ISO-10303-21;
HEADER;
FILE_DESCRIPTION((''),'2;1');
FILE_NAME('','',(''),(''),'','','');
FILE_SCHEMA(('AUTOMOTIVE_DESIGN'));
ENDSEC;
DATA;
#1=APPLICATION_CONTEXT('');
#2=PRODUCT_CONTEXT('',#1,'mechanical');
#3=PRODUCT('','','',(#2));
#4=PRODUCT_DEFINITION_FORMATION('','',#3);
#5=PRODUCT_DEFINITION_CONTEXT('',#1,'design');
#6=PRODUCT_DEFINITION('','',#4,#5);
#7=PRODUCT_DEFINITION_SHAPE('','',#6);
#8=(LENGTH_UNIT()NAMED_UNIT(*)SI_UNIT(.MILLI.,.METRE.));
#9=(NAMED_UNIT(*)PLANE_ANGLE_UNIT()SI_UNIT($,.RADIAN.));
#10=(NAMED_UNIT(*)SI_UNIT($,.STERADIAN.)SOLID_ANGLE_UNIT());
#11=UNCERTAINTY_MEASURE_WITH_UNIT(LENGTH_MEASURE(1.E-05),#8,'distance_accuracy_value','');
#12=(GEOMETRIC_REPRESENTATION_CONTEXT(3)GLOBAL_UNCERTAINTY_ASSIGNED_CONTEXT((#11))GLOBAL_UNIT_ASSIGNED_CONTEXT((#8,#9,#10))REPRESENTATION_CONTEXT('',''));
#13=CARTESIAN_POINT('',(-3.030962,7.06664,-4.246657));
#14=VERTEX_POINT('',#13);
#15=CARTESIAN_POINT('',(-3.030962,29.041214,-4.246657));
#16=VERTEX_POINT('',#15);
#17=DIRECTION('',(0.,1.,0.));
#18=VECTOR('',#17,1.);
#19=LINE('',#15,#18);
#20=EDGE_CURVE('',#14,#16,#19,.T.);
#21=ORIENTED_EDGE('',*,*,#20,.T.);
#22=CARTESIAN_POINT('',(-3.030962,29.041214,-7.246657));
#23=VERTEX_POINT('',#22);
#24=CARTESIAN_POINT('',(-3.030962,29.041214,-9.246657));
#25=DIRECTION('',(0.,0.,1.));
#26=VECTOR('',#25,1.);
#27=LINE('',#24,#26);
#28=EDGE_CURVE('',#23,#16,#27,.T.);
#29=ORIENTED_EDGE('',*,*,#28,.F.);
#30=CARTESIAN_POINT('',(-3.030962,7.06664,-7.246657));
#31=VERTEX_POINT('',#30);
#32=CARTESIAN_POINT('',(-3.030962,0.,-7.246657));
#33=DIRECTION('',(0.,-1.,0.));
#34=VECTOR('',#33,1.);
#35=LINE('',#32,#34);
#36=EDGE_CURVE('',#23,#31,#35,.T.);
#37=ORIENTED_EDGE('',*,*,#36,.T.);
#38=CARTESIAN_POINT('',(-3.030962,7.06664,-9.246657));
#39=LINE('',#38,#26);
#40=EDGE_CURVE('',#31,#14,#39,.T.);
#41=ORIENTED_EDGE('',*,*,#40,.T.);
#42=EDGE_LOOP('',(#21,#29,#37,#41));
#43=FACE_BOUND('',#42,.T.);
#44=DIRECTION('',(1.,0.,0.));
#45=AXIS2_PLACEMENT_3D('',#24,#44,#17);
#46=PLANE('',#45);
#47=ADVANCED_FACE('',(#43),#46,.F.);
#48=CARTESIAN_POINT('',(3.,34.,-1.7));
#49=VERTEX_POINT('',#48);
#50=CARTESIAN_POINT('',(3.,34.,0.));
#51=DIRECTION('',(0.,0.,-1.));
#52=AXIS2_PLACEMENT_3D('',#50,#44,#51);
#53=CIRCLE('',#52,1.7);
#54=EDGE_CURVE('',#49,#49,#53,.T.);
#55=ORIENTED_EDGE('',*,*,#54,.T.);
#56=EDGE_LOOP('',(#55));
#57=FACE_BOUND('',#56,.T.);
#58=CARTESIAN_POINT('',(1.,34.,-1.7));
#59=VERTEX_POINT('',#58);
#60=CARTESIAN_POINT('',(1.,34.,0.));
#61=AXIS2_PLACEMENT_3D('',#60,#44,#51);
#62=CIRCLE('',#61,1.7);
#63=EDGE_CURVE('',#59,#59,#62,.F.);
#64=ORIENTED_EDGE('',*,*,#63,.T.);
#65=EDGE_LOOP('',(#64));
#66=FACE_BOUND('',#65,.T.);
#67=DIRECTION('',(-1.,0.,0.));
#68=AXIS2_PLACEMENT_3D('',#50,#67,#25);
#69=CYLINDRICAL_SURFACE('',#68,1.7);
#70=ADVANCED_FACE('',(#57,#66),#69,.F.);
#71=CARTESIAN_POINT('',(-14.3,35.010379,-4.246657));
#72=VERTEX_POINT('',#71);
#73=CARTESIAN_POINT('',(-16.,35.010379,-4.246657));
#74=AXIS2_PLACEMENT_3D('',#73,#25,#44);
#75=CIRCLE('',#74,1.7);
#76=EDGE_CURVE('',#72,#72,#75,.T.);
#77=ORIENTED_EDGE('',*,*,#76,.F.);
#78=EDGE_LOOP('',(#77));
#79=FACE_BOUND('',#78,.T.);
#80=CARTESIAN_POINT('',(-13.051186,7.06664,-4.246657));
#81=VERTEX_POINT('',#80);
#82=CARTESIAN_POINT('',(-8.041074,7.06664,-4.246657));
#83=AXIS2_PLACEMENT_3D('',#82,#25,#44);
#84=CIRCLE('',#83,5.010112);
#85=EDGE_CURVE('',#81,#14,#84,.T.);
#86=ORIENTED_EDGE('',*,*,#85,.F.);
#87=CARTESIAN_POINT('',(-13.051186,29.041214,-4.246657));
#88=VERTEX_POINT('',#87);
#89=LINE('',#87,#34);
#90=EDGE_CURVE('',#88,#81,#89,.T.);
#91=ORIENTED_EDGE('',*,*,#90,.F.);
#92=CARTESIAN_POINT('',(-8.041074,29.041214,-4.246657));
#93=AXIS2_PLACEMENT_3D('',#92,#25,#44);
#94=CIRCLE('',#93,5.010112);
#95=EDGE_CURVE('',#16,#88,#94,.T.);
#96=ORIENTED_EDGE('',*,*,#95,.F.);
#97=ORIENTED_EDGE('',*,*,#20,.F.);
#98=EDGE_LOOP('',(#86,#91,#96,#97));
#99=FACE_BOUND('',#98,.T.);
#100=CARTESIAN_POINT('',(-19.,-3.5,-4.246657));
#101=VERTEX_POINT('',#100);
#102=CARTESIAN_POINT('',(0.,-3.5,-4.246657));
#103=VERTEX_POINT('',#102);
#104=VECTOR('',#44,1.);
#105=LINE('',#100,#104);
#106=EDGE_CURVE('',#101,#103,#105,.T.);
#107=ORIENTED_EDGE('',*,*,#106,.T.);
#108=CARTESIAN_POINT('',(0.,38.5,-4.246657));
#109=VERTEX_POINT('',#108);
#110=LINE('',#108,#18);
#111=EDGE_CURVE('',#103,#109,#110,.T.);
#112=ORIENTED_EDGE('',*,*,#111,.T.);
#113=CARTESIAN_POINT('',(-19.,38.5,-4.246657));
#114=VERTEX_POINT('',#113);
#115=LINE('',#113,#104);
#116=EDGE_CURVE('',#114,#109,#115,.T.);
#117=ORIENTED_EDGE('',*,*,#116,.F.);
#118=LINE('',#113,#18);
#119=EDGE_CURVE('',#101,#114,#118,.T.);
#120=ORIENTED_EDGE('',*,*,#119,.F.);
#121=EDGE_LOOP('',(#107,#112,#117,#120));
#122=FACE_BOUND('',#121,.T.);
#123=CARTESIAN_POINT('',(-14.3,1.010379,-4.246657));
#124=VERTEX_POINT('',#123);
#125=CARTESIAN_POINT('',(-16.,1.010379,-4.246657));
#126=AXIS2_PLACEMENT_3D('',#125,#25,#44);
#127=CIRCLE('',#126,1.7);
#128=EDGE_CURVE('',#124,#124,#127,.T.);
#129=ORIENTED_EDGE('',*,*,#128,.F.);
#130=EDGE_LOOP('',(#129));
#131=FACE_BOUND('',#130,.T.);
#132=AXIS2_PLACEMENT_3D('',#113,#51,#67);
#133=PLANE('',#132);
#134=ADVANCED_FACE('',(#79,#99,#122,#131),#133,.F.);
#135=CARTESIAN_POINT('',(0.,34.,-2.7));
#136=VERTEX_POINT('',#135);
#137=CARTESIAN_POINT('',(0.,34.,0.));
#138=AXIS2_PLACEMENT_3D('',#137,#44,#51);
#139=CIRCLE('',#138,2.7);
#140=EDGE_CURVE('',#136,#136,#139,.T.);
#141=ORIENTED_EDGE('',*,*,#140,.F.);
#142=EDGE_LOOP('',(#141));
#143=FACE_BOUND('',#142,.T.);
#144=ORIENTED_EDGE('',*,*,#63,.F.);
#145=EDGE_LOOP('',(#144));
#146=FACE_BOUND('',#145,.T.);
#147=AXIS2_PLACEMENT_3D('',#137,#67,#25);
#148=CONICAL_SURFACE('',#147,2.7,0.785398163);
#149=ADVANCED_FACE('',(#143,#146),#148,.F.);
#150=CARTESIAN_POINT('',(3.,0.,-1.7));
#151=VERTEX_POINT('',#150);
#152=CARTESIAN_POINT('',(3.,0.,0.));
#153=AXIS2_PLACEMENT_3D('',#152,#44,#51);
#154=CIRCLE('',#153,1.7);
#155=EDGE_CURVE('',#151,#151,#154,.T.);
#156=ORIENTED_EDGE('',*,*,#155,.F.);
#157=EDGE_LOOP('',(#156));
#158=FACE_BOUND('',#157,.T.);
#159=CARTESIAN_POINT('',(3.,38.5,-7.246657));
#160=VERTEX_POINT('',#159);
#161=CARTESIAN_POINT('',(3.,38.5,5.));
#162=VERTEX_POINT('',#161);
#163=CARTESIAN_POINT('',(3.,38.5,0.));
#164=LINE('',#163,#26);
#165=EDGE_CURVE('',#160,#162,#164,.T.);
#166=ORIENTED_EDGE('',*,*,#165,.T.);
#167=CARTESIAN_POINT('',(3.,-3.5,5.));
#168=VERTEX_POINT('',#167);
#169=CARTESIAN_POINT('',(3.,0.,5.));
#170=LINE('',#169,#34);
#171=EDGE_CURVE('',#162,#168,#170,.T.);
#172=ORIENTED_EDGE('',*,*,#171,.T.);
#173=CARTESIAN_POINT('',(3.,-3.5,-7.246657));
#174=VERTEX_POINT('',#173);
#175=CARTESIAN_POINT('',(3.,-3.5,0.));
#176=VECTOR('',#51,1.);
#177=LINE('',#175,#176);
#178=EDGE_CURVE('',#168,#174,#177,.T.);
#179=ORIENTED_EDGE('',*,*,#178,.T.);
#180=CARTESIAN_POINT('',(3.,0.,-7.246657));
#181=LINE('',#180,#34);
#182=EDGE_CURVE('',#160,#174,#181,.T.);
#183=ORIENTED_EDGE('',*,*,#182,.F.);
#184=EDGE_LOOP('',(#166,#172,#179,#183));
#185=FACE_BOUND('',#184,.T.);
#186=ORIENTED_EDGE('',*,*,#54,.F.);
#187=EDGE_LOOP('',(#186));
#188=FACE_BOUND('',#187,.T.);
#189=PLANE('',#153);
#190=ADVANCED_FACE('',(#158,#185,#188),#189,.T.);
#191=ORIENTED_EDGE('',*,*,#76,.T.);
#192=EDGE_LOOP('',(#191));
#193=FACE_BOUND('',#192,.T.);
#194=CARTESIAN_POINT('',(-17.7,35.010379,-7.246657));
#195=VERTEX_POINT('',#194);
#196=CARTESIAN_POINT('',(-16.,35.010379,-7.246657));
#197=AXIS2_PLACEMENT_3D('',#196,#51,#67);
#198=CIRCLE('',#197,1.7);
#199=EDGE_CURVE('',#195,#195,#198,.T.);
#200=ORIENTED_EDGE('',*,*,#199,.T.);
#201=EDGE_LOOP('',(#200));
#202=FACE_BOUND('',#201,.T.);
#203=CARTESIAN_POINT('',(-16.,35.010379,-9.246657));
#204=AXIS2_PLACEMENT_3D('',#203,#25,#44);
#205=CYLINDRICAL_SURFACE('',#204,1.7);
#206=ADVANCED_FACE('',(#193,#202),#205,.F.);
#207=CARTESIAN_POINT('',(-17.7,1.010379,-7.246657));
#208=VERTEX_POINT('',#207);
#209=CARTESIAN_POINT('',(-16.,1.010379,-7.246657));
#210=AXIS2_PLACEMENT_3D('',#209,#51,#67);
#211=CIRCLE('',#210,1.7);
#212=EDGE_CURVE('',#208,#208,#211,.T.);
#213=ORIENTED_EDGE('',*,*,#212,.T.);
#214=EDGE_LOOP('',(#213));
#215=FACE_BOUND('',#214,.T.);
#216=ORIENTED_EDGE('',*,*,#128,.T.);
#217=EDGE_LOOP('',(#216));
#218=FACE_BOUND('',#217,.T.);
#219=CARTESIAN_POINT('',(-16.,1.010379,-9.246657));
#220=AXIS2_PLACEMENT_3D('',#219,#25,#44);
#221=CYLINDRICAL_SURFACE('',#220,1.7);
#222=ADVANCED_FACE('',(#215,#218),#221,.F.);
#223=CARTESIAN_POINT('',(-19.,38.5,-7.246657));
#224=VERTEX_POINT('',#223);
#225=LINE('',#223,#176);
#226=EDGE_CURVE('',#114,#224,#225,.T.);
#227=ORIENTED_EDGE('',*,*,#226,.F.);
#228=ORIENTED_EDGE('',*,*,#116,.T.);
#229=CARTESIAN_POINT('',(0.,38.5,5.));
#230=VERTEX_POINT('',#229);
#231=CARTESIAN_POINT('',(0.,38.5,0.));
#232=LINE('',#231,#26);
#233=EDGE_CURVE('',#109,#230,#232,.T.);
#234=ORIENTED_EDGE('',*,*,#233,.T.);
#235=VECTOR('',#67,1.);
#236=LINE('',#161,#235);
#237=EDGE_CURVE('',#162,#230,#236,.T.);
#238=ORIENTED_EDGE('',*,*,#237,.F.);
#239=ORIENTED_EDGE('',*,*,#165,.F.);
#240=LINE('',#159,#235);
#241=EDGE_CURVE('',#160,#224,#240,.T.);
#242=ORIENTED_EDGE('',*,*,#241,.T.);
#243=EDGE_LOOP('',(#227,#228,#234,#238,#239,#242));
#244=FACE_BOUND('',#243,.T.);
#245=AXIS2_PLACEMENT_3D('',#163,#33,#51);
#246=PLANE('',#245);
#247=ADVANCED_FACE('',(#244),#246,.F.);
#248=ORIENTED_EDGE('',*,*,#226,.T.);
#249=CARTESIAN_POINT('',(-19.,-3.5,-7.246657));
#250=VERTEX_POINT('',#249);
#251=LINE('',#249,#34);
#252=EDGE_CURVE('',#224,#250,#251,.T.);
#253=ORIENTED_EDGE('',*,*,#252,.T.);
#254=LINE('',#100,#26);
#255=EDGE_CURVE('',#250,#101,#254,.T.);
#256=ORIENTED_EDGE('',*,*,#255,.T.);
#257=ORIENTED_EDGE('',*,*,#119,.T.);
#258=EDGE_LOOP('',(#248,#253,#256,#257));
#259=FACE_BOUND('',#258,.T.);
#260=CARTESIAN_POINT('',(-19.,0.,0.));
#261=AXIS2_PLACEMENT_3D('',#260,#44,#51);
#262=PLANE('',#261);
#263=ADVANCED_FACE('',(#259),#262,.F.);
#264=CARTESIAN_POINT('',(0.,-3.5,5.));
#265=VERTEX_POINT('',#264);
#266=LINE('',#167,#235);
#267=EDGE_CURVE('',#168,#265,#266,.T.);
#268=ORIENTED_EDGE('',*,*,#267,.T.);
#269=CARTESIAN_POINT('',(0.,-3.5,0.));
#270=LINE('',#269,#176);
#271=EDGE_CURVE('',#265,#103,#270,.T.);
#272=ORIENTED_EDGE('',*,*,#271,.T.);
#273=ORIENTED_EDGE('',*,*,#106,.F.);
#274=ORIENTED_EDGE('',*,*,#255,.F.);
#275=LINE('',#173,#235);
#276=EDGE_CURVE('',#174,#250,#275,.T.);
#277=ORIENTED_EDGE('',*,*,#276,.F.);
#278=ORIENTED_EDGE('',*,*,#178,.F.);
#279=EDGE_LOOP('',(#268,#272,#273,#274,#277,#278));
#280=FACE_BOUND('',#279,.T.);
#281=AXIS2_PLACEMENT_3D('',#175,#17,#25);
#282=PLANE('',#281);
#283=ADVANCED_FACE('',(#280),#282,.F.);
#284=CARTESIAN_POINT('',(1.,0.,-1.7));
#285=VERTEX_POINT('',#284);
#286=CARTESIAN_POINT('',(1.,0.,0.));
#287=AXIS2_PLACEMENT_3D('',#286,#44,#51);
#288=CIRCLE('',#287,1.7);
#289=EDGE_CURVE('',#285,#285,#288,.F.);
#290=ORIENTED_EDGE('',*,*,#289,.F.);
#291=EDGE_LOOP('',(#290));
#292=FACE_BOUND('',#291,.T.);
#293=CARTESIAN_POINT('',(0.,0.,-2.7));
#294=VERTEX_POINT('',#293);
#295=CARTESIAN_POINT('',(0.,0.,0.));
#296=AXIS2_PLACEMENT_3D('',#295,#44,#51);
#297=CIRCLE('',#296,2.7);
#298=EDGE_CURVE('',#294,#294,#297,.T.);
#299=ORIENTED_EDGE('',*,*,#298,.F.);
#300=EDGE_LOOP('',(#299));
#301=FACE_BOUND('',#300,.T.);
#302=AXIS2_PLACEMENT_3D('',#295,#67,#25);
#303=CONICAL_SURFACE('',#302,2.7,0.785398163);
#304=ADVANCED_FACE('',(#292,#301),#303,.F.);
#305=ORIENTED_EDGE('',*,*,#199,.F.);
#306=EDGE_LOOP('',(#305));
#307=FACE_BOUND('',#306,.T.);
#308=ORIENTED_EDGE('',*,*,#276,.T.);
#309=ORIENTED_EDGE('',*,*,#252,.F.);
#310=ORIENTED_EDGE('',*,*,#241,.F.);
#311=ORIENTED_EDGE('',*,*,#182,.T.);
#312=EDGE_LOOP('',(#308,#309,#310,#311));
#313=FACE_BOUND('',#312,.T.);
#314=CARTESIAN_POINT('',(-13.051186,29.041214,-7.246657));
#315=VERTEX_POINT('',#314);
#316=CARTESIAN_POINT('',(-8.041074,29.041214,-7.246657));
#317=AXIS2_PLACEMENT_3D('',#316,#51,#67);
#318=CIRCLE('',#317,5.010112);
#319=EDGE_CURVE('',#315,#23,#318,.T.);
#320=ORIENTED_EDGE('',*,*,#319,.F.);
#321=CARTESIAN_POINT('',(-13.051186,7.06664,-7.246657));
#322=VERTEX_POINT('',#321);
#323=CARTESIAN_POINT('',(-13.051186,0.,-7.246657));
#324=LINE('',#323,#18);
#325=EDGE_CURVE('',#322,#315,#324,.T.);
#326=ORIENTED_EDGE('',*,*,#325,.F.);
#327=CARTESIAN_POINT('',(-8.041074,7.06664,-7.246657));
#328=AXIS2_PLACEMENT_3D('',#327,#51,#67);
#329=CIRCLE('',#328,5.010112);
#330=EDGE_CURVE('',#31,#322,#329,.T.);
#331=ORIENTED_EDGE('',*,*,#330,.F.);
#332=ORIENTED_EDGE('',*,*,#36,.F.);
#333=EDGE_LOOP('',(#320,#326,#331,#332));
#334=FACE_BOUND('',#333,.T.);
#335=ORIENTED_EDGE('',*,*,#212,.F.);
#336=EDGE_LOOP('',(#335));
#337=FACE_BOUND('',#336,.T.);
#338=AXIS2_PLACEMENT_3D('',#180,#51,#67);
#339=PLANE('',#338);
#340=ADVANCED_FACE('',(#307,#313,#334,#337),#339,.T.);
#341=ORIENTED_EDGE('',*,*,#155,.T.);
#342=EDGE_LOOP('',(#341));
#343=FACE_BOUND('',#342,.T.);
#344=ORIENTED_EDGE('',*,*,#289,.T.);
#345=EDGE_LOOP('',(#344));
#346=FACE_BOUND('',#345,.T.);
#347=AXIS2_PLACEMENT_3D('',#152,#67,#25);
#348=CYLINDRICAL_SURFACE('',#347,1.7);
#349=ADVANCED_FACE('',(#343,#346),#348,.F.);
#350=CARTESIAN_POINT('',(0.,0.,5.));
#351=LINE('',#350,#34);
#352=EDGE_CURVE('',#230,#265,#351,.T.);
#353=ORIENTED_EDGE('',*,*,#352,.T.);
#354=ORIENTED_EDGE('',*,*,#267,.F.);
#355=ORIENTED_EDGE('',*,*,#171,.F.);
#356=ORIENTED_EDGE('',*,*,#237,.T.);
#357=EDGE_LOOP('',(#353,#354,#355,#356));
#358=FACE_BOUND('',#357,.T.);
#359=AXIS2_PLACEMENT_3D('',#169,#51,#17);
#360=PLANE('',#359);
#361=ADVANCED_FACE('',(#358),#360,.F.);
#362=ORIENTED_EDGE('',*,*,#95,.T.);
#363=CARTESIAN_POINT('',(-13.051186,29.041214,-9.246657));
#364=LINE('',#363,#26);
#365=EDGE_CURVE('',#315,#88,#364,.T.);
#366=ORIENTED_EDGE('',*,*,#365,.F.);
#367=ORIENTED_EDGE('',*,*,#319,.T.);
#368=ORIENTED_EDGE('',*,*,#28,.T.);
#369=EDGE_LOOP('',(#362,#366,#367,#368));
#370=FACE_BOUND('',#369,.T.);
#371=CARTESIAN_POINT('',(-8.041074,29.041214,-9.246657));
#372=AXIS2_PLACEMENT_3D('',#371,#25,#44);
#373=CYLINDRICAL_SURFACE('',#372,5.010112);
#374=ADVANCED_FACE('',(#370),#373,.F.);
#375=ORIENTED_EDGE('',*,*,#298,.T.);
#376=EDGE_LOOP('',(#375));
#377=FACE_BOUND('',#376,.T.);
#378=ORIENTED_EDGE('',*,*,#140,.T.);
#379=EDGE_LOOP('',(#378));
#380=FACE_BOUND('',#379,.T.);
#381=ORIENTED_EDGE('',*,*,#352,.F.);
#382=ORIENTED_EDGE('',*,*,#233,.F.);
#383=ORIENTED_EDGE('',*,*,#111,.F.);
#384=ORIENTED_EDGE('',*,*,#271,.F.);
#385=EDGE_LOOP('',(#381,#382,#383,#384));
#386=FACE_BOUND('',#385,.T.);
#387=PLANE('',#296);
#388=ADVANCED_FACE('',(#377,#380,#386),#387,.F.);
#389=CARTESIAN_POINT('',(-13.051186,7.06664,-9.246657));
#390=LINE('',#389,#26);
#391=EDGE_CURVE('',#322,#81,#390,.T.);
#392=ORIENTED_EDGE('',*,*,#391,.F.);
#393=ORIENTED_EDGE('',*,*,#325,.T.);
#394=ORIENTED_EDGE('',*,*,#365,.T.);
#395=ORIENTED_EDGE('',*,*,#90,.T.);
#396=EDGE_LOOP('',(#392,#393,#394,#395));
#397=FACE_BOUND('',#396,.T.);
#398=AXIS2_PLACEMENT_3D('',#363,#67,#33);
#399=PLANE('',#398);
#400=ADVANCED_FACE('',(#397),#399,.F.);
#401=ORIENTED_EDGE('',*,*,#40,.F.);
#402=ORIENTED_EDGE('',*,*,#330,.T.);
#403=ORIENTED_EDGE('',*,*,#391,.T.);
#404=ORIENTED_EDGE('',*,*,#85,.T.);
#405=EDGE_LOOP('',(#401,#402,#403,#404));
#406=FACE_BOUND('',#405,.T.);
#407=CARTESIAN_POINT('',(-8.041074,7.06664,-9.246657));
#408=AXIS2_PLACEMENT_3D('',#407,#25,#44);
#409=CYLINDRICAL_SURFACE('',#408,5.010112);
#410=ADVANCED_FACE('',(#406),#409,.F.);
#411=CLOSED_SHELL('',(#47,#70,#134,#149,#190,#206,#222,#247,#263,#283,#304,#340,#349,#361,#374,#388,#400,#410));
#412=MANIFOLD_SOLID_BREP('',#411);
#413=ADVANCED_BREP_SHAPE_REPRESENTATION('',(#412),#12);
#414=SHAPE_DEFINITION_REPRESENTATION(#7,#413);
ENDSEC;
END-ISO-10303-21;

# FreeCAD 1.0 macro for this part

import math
import FreeCAD as App
import Part
import Sketcher


def edges_at(feature, points):
    """Names of the edges that pass closest to the given points."""
    edges = feature.Shape.Edges
    near = lambda p: min(range(len(edges)), key=lambda i: edges[i].distToShape(Part.Vertex(*p))[0])
    return sorted({f"Edge{near(p) + 1}" for p in points})


def add_polygon(sketch, points):
    """Adds a closed chain of lines whose ends are joined by coincident constraints."""
    first, n = sketch.GeometryCount, len(points)
    for a, b in zip(points, points[1:] + points[:1]):
        sketch.addGeometry(Part.LineSegment(App.Vector(*a, 0), App.Vector(*b, 0)), False)
    for i in range(n):
        sketch.addConstraint(Sketcher.Constraint("Coincident", first + i, 2, first + (i + 1) % n, 1))

doc = App.newDocument("Part")
params = doc.addObject("Spreadsheet::Sheet", "Params")
for row, (alias, value) in enumerate([
    ("sketch1_diameter", "3.4 mm"),
    ("sketch1_width", "42 mm"),
    ("pad1_length", "3 mm"),
    ("sketch2_width", "42 mm"),
    ("sketch2_height", "3 mm"),
    ("pad2_length", "19 mm"),
    ("sketch3_diameter", "3.4 mm"),
    ("pocket1_length", "5 mm"),
    ("pocket2_length", "5 mm"),
    ("chamfer_size", "1 mm"),
], start=1):
    params.set(f"A{row}", alias)
    params.set(f"B{row}", "=" + value)
    params.setAlias(f"B{row}", alias)

body = doc.addObject("PartDesign::Body", "Body")

# Sketch on YZ plane
sketch1 = body.newObject("Sketcher::SketchObject", "Sketch")
sketch1.AttachmentSupport = (doc.getObject("YZ_Plane"), [""])
sketch1.MapMode = "FlatFace"
add_polygon(sketch1, [(38.5, 5), (-3.5, 5), (-3.5, -7.2), (38.5, -7.2)])  # lines 0-3
sketch1.addGeometry(Part.Circle(App.Vector(0, 0, 0), App.Vector(0, 0, 1), 1.7), False)  # 4
sketch1.addGeometry(Part.Circle(App.Vector(34, 0, 0), App.Vector(0, 0, 1), 1.7), False)  # 5
sketch1.addConstraint(Sketcher.Constraint("Horizontal", 0))
sketch1.addConstraint(Sketcher.Constraint("Vertical", 1))
sketch1.addConstraint(Sketcher.Constraint("Horizontal", 2))
sketch1.addConstraint(Sketcher.Constraint("Vertical", 3))
sketch1.addConstraint(Sketcher.Constraint("Coincident", 4, 3, -1, 1))
sketch1.addConstraint(Sketcher.Constraint("Equal", 4, 5))
sketch1.addConstraint(Sketcher.Constraint("PointOnObject", 5, 3, -1))
sketch1.addConstraint(Sketcher.Constraint("Diameter", 4, 3.4))
sketch1.addConstraint(Sketcher.Constraint("DistanceX", 0, 2, 0, 1, 42.0))
sketch1.addConstraint(Sketcher.Constraint("DistanceX", -1, 1, 5, 3, 34.0))
sketch1.addConstraint(Sketcher.Constraint("DistanceY", -1, 1, 0, 2, 5.0))
sketch1.addConstraint(Sketcher.Constraint("DistanceX", 0, 2, -1, 1, 3.5))
sketch1.addConstraint(Sketcher.Constraint("DistanceY", 1, 2, 1, 1, 12.246657))
sketch1.setExpression("Constraints[11]", "Params.sketch1_diameter")
sketch1.setExpression("Constraints[12]", "Params.sketch1_width")
pad1 = body.newObject("PartDesign::Pad", "Pad")
pad1.Profile = sketch1
pad1.setExpression("Length", "Params.pad1_length")

# Sketch on YZ plane
sketch2 = body.newObject("Sketcher::SketchObject", "Sketch001")
sketch2.AttachmentSupport = (doc.getObject("YZ_Plane"), [""])
sketch2.MapMode = "FlatFace"
add_polygon(sketch2, [(38.5, -7.2), (-3.5, -7.2), (-3.5, -4.2), (38.5, -4.2)])  # lines 0-3
sketch2.addConstraint(Sketcher.Constraint("Horizontal", 0))
sketch2.addConstraint(Sketcher.Constraint("Vertical", 1))
sketch2.addConstraint(Sketcher.Constraint("Horizontal", 2))
sketch2.addConstraint(Sketcher.Constraint("Vertical", 3))
sketch2.addConstraint(Sketcher.Constraint("DistanceX", 0, 2, 0, 1, 42.0))
sketch2.addConstraint(Sketcher.Constraint("DistanceY", 1, 1, 1, 2, 3.0))
sketch2.addConstraint(Sketcher.Constraint("DistanceX", 0, 2, -1, 1, 3.5))
sketch2.addConstraint(Sketcher.Constraint("DistanceY", 0, 2, -1, 1, 7.246657))
sketch2.setExpression("Constraints[8]", "Params.sketch2_width")
sketch2.setExpression("Constraints[9]", "Params.sketch2_height")
pad2 = body.newObject("PartDesign::Pad", "Pad001")
pad2.Profile = sketch2
pad2.setExpression("Length", "Params.pad2_length")
pad2.Reversed = True

# Sketch on XY plane
sketch3 = body.newObject("Sketcher::SketchObject", "Sketch002")
sketch3.AttachmentSupport = (doc.getObject("XY_Plane"), [""])
sketch3.MapMode = "FlatFace"
sketch3.AttachmentOffset = App.Placement(App.Vector(0, 0, -4.246657), App.Rotation())
sketch3.addGeometry(Part.Circle(App.Vector(-16, 35, 0), App.Vector(0, 0, 1), 1.7), False)
sketch3.addGeometry(Part.Circle(App.Vector(-16, 1, 0), App.Vector(0, 0, 1), 1.7), False)
sketch3.addConstraint(Sketcher.Constraint("Equal", 0, 1))
sketch3.addConstraint(Sketcher.Constraint("Vertical", 0, 3, 1, 3))
sketch3.addConstraint(Sketcher.Constraint("Diameter", 0, 3.4))
sketch3.addConstraint(Sketcher.Constraint("DistanceX", 0, 3, -1, 1, 16.0))
sketch3.addConstraint(Sketcher.Constraint("DistanceY", 1, 3, 0, 3, 34.0))
sketch3.addConstraint(Sketcher.Constraint("DistanceY", -1, 1, 0, 3, 35.010379))
sketch3.setExpression("Constraints[2]", "Params.sketch3_diameter")
pocket1 = body.newObject("PartDesign::Pocket", "Pocket")
pocket1.Profile = sketch3
pocket1.setExpression("Length", "Params.pocket1_length")

# Sketch on XY plane
sketch4 = body.newObject("Sketcher::SketchObject", "Sketch003")
sketch4.AttachmentSupport = (doc.getObject("XY_Plane"), [""])
sketch4.MapMode = "FlatFace"
sketch4.AttachmentOffset = App.Placement(App.Vector(0, 0, -4.246657), App.Rotation())
sketch4.addGeometry(Part.LineSegment(App.Vector(-3, 7, 0), App.Vector(-3, 29, 0)), False)
sketch4.addGeometry(Part.ArcOfCircle(Part.Circle(App.Vector(-8, 29, 0), App.Vector(0, 0, 1), 5), math.radians(0), math.radians(180)), False)
sketch4.addGeometry(Part.LineSegment(App.Vector(-13, 29, 0), App.Vector(-13, 7, 0)), False)
sketch4.addGeometry(Part.ArcOfCircle(Part.Circle(App.Vector(-8, 7, 0), App.Vector(0, 0, 1), 5), math.radians(-180), math.radians(0)), False)
sketch4.addConstraint(Sketcher.Constraint("Tangent", 0, 2, 1, 1))
sketch4.addConstraint(Sketcher.Constraint("Tangent", 1, 2, 2, 1))
sketch4.addConstraint(Sketcher.Constraint("Tangent", 2, 2, 3, 1))
sketch4.addConstraint(Sketcher.Constraint("Tangent", 3, 2, 0, 1))
sketch4.addConstraint(Sketcher.Constraint("Vertical", 0))
sketch4.addConstraint(Sketcher.Constraint("Vertical", 2))
sketch4.addConstraint(Sketcher.Constraint("Radius", 1, 5.010112))
sketch4.addConstraint(Sketcher.Constraint("DistanceY", 0, 1, 0, 2, 21.974574))
sketch4.addConstraint(Sketcher.Constraint("DistanceY", -1, 1, 3, 3, 7.06664))
sketch4.addConstraint(Sketcher.Constraint("DistanceX", 0, 2, -1, 1, 3.030962))
pocket2 = body.newObject("PartDesign::Pocket", "Pocket001")
pocket2.Profile = sketch4
pocket2.setExpression("Length", "Params.pocket2_length")
doc.recompute()

chamfer = body.newObject("PartDesign::Chamfer", "Chamfer")
chamfer.Base = (pocket2, edges_at(pocket2, [(0, 32.3, 0), (0, 0, 1.7)]))
chamfer.setExpression("Size", "Params.chamfer_size")

doc.recompute()
